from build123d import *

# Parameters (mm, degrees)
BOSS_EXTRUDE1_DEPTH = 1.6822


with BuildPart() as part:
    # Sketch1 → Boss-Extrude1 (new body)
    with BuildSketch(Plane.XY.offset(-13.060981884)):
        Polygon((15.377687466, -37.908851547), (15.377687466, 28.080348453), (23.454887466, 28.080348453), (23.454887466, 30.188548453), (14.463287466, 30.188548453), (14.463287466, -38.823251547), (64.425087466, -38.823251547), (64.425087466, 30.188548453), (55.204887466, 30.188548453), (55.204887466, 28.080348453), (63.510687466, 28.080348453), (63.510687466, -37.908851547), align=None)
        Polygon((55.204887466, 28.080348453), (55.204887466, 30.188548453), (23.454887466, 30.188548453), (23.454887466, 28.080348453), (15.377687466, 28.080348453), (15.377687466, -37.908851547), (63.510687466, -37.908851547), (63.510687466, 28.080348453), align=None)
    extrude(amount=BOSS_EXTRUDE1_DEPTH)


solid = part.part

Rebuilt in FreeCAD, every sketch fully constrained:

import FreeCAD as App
import Part
import Sketcher
from FreeCAD import Vector
Q = App.Units.Quantity


def add_polygon(sketch, points):
    """Adds a closed chain of lines whose ends are joined by coincident constraints."""
    first, n = sketch.GeometryCount, len(points)
    for a, b in zip(points, points[1:] + points[:1]):
        sketch.addGeometry(Part.LineSegment(App.Vector(*a, 0), App.Vector(*b, 0)), False)
    for i in range(n):
        sketch.addConstraint(Sketcher.Constraint("Coincident", first + i, 2, first + (i + 1) % n, 1))

doc = App.newDocument("Part")
body = doc.addObject("PartDesign::Body", "Body")

# Sketch on XY plane
sketch1 = body.newObject("Sketcher::SketchObject", "Sketch")
sketch1.AttachmentSupport = (doc.getObject("XY_Plane"), [""])
sketch1.MapMode = "FlatFace"
sketch1.AttachmentOffset = App.Placement(Vector(0, 0, -13.060982), App.Rotation())
add_polygon(sketch1, [(14.463287, 30.188548), (14.463287, -38.823252), (64.425087, -38.823252), (64.425087, 30.188548)])  # lines 0-3
sketch1.addConstraint(Sketcher.Constraint("Vertical", 0))
sketch1.addConstraint(Sketcher.Constraint("Horizontal", 1))
sketch1.addConstraint(Sketcher.Constraint("Vertical", 2))
sketch1.addConstraint(Sketcher.Constraint("Horizontal", 3))
sketch1.addConstraint(Sketcher.Constraint("DistanceX", 1, 1, 1, 2, Q("1.967 in")))
sketch1.addConstraint(Sketcher.Constraint("DistanceY", 0, 2, 0, 1, Q("2.717 in")))
sketch1.addConstraint(Sketcher.Constraint("DistanceY", 0, 2, -1, 1, 38.823252))
sketch1.addConstraint(Sketcher.Constraint("DistanceX", -1, 1, 0, 2, 14.463287))
pad1 = body.newObject("PartDesign::Pad", "Pad")
pad1.Profile = sketch1
pad1.Length = 1.6822

doc.recompute()
